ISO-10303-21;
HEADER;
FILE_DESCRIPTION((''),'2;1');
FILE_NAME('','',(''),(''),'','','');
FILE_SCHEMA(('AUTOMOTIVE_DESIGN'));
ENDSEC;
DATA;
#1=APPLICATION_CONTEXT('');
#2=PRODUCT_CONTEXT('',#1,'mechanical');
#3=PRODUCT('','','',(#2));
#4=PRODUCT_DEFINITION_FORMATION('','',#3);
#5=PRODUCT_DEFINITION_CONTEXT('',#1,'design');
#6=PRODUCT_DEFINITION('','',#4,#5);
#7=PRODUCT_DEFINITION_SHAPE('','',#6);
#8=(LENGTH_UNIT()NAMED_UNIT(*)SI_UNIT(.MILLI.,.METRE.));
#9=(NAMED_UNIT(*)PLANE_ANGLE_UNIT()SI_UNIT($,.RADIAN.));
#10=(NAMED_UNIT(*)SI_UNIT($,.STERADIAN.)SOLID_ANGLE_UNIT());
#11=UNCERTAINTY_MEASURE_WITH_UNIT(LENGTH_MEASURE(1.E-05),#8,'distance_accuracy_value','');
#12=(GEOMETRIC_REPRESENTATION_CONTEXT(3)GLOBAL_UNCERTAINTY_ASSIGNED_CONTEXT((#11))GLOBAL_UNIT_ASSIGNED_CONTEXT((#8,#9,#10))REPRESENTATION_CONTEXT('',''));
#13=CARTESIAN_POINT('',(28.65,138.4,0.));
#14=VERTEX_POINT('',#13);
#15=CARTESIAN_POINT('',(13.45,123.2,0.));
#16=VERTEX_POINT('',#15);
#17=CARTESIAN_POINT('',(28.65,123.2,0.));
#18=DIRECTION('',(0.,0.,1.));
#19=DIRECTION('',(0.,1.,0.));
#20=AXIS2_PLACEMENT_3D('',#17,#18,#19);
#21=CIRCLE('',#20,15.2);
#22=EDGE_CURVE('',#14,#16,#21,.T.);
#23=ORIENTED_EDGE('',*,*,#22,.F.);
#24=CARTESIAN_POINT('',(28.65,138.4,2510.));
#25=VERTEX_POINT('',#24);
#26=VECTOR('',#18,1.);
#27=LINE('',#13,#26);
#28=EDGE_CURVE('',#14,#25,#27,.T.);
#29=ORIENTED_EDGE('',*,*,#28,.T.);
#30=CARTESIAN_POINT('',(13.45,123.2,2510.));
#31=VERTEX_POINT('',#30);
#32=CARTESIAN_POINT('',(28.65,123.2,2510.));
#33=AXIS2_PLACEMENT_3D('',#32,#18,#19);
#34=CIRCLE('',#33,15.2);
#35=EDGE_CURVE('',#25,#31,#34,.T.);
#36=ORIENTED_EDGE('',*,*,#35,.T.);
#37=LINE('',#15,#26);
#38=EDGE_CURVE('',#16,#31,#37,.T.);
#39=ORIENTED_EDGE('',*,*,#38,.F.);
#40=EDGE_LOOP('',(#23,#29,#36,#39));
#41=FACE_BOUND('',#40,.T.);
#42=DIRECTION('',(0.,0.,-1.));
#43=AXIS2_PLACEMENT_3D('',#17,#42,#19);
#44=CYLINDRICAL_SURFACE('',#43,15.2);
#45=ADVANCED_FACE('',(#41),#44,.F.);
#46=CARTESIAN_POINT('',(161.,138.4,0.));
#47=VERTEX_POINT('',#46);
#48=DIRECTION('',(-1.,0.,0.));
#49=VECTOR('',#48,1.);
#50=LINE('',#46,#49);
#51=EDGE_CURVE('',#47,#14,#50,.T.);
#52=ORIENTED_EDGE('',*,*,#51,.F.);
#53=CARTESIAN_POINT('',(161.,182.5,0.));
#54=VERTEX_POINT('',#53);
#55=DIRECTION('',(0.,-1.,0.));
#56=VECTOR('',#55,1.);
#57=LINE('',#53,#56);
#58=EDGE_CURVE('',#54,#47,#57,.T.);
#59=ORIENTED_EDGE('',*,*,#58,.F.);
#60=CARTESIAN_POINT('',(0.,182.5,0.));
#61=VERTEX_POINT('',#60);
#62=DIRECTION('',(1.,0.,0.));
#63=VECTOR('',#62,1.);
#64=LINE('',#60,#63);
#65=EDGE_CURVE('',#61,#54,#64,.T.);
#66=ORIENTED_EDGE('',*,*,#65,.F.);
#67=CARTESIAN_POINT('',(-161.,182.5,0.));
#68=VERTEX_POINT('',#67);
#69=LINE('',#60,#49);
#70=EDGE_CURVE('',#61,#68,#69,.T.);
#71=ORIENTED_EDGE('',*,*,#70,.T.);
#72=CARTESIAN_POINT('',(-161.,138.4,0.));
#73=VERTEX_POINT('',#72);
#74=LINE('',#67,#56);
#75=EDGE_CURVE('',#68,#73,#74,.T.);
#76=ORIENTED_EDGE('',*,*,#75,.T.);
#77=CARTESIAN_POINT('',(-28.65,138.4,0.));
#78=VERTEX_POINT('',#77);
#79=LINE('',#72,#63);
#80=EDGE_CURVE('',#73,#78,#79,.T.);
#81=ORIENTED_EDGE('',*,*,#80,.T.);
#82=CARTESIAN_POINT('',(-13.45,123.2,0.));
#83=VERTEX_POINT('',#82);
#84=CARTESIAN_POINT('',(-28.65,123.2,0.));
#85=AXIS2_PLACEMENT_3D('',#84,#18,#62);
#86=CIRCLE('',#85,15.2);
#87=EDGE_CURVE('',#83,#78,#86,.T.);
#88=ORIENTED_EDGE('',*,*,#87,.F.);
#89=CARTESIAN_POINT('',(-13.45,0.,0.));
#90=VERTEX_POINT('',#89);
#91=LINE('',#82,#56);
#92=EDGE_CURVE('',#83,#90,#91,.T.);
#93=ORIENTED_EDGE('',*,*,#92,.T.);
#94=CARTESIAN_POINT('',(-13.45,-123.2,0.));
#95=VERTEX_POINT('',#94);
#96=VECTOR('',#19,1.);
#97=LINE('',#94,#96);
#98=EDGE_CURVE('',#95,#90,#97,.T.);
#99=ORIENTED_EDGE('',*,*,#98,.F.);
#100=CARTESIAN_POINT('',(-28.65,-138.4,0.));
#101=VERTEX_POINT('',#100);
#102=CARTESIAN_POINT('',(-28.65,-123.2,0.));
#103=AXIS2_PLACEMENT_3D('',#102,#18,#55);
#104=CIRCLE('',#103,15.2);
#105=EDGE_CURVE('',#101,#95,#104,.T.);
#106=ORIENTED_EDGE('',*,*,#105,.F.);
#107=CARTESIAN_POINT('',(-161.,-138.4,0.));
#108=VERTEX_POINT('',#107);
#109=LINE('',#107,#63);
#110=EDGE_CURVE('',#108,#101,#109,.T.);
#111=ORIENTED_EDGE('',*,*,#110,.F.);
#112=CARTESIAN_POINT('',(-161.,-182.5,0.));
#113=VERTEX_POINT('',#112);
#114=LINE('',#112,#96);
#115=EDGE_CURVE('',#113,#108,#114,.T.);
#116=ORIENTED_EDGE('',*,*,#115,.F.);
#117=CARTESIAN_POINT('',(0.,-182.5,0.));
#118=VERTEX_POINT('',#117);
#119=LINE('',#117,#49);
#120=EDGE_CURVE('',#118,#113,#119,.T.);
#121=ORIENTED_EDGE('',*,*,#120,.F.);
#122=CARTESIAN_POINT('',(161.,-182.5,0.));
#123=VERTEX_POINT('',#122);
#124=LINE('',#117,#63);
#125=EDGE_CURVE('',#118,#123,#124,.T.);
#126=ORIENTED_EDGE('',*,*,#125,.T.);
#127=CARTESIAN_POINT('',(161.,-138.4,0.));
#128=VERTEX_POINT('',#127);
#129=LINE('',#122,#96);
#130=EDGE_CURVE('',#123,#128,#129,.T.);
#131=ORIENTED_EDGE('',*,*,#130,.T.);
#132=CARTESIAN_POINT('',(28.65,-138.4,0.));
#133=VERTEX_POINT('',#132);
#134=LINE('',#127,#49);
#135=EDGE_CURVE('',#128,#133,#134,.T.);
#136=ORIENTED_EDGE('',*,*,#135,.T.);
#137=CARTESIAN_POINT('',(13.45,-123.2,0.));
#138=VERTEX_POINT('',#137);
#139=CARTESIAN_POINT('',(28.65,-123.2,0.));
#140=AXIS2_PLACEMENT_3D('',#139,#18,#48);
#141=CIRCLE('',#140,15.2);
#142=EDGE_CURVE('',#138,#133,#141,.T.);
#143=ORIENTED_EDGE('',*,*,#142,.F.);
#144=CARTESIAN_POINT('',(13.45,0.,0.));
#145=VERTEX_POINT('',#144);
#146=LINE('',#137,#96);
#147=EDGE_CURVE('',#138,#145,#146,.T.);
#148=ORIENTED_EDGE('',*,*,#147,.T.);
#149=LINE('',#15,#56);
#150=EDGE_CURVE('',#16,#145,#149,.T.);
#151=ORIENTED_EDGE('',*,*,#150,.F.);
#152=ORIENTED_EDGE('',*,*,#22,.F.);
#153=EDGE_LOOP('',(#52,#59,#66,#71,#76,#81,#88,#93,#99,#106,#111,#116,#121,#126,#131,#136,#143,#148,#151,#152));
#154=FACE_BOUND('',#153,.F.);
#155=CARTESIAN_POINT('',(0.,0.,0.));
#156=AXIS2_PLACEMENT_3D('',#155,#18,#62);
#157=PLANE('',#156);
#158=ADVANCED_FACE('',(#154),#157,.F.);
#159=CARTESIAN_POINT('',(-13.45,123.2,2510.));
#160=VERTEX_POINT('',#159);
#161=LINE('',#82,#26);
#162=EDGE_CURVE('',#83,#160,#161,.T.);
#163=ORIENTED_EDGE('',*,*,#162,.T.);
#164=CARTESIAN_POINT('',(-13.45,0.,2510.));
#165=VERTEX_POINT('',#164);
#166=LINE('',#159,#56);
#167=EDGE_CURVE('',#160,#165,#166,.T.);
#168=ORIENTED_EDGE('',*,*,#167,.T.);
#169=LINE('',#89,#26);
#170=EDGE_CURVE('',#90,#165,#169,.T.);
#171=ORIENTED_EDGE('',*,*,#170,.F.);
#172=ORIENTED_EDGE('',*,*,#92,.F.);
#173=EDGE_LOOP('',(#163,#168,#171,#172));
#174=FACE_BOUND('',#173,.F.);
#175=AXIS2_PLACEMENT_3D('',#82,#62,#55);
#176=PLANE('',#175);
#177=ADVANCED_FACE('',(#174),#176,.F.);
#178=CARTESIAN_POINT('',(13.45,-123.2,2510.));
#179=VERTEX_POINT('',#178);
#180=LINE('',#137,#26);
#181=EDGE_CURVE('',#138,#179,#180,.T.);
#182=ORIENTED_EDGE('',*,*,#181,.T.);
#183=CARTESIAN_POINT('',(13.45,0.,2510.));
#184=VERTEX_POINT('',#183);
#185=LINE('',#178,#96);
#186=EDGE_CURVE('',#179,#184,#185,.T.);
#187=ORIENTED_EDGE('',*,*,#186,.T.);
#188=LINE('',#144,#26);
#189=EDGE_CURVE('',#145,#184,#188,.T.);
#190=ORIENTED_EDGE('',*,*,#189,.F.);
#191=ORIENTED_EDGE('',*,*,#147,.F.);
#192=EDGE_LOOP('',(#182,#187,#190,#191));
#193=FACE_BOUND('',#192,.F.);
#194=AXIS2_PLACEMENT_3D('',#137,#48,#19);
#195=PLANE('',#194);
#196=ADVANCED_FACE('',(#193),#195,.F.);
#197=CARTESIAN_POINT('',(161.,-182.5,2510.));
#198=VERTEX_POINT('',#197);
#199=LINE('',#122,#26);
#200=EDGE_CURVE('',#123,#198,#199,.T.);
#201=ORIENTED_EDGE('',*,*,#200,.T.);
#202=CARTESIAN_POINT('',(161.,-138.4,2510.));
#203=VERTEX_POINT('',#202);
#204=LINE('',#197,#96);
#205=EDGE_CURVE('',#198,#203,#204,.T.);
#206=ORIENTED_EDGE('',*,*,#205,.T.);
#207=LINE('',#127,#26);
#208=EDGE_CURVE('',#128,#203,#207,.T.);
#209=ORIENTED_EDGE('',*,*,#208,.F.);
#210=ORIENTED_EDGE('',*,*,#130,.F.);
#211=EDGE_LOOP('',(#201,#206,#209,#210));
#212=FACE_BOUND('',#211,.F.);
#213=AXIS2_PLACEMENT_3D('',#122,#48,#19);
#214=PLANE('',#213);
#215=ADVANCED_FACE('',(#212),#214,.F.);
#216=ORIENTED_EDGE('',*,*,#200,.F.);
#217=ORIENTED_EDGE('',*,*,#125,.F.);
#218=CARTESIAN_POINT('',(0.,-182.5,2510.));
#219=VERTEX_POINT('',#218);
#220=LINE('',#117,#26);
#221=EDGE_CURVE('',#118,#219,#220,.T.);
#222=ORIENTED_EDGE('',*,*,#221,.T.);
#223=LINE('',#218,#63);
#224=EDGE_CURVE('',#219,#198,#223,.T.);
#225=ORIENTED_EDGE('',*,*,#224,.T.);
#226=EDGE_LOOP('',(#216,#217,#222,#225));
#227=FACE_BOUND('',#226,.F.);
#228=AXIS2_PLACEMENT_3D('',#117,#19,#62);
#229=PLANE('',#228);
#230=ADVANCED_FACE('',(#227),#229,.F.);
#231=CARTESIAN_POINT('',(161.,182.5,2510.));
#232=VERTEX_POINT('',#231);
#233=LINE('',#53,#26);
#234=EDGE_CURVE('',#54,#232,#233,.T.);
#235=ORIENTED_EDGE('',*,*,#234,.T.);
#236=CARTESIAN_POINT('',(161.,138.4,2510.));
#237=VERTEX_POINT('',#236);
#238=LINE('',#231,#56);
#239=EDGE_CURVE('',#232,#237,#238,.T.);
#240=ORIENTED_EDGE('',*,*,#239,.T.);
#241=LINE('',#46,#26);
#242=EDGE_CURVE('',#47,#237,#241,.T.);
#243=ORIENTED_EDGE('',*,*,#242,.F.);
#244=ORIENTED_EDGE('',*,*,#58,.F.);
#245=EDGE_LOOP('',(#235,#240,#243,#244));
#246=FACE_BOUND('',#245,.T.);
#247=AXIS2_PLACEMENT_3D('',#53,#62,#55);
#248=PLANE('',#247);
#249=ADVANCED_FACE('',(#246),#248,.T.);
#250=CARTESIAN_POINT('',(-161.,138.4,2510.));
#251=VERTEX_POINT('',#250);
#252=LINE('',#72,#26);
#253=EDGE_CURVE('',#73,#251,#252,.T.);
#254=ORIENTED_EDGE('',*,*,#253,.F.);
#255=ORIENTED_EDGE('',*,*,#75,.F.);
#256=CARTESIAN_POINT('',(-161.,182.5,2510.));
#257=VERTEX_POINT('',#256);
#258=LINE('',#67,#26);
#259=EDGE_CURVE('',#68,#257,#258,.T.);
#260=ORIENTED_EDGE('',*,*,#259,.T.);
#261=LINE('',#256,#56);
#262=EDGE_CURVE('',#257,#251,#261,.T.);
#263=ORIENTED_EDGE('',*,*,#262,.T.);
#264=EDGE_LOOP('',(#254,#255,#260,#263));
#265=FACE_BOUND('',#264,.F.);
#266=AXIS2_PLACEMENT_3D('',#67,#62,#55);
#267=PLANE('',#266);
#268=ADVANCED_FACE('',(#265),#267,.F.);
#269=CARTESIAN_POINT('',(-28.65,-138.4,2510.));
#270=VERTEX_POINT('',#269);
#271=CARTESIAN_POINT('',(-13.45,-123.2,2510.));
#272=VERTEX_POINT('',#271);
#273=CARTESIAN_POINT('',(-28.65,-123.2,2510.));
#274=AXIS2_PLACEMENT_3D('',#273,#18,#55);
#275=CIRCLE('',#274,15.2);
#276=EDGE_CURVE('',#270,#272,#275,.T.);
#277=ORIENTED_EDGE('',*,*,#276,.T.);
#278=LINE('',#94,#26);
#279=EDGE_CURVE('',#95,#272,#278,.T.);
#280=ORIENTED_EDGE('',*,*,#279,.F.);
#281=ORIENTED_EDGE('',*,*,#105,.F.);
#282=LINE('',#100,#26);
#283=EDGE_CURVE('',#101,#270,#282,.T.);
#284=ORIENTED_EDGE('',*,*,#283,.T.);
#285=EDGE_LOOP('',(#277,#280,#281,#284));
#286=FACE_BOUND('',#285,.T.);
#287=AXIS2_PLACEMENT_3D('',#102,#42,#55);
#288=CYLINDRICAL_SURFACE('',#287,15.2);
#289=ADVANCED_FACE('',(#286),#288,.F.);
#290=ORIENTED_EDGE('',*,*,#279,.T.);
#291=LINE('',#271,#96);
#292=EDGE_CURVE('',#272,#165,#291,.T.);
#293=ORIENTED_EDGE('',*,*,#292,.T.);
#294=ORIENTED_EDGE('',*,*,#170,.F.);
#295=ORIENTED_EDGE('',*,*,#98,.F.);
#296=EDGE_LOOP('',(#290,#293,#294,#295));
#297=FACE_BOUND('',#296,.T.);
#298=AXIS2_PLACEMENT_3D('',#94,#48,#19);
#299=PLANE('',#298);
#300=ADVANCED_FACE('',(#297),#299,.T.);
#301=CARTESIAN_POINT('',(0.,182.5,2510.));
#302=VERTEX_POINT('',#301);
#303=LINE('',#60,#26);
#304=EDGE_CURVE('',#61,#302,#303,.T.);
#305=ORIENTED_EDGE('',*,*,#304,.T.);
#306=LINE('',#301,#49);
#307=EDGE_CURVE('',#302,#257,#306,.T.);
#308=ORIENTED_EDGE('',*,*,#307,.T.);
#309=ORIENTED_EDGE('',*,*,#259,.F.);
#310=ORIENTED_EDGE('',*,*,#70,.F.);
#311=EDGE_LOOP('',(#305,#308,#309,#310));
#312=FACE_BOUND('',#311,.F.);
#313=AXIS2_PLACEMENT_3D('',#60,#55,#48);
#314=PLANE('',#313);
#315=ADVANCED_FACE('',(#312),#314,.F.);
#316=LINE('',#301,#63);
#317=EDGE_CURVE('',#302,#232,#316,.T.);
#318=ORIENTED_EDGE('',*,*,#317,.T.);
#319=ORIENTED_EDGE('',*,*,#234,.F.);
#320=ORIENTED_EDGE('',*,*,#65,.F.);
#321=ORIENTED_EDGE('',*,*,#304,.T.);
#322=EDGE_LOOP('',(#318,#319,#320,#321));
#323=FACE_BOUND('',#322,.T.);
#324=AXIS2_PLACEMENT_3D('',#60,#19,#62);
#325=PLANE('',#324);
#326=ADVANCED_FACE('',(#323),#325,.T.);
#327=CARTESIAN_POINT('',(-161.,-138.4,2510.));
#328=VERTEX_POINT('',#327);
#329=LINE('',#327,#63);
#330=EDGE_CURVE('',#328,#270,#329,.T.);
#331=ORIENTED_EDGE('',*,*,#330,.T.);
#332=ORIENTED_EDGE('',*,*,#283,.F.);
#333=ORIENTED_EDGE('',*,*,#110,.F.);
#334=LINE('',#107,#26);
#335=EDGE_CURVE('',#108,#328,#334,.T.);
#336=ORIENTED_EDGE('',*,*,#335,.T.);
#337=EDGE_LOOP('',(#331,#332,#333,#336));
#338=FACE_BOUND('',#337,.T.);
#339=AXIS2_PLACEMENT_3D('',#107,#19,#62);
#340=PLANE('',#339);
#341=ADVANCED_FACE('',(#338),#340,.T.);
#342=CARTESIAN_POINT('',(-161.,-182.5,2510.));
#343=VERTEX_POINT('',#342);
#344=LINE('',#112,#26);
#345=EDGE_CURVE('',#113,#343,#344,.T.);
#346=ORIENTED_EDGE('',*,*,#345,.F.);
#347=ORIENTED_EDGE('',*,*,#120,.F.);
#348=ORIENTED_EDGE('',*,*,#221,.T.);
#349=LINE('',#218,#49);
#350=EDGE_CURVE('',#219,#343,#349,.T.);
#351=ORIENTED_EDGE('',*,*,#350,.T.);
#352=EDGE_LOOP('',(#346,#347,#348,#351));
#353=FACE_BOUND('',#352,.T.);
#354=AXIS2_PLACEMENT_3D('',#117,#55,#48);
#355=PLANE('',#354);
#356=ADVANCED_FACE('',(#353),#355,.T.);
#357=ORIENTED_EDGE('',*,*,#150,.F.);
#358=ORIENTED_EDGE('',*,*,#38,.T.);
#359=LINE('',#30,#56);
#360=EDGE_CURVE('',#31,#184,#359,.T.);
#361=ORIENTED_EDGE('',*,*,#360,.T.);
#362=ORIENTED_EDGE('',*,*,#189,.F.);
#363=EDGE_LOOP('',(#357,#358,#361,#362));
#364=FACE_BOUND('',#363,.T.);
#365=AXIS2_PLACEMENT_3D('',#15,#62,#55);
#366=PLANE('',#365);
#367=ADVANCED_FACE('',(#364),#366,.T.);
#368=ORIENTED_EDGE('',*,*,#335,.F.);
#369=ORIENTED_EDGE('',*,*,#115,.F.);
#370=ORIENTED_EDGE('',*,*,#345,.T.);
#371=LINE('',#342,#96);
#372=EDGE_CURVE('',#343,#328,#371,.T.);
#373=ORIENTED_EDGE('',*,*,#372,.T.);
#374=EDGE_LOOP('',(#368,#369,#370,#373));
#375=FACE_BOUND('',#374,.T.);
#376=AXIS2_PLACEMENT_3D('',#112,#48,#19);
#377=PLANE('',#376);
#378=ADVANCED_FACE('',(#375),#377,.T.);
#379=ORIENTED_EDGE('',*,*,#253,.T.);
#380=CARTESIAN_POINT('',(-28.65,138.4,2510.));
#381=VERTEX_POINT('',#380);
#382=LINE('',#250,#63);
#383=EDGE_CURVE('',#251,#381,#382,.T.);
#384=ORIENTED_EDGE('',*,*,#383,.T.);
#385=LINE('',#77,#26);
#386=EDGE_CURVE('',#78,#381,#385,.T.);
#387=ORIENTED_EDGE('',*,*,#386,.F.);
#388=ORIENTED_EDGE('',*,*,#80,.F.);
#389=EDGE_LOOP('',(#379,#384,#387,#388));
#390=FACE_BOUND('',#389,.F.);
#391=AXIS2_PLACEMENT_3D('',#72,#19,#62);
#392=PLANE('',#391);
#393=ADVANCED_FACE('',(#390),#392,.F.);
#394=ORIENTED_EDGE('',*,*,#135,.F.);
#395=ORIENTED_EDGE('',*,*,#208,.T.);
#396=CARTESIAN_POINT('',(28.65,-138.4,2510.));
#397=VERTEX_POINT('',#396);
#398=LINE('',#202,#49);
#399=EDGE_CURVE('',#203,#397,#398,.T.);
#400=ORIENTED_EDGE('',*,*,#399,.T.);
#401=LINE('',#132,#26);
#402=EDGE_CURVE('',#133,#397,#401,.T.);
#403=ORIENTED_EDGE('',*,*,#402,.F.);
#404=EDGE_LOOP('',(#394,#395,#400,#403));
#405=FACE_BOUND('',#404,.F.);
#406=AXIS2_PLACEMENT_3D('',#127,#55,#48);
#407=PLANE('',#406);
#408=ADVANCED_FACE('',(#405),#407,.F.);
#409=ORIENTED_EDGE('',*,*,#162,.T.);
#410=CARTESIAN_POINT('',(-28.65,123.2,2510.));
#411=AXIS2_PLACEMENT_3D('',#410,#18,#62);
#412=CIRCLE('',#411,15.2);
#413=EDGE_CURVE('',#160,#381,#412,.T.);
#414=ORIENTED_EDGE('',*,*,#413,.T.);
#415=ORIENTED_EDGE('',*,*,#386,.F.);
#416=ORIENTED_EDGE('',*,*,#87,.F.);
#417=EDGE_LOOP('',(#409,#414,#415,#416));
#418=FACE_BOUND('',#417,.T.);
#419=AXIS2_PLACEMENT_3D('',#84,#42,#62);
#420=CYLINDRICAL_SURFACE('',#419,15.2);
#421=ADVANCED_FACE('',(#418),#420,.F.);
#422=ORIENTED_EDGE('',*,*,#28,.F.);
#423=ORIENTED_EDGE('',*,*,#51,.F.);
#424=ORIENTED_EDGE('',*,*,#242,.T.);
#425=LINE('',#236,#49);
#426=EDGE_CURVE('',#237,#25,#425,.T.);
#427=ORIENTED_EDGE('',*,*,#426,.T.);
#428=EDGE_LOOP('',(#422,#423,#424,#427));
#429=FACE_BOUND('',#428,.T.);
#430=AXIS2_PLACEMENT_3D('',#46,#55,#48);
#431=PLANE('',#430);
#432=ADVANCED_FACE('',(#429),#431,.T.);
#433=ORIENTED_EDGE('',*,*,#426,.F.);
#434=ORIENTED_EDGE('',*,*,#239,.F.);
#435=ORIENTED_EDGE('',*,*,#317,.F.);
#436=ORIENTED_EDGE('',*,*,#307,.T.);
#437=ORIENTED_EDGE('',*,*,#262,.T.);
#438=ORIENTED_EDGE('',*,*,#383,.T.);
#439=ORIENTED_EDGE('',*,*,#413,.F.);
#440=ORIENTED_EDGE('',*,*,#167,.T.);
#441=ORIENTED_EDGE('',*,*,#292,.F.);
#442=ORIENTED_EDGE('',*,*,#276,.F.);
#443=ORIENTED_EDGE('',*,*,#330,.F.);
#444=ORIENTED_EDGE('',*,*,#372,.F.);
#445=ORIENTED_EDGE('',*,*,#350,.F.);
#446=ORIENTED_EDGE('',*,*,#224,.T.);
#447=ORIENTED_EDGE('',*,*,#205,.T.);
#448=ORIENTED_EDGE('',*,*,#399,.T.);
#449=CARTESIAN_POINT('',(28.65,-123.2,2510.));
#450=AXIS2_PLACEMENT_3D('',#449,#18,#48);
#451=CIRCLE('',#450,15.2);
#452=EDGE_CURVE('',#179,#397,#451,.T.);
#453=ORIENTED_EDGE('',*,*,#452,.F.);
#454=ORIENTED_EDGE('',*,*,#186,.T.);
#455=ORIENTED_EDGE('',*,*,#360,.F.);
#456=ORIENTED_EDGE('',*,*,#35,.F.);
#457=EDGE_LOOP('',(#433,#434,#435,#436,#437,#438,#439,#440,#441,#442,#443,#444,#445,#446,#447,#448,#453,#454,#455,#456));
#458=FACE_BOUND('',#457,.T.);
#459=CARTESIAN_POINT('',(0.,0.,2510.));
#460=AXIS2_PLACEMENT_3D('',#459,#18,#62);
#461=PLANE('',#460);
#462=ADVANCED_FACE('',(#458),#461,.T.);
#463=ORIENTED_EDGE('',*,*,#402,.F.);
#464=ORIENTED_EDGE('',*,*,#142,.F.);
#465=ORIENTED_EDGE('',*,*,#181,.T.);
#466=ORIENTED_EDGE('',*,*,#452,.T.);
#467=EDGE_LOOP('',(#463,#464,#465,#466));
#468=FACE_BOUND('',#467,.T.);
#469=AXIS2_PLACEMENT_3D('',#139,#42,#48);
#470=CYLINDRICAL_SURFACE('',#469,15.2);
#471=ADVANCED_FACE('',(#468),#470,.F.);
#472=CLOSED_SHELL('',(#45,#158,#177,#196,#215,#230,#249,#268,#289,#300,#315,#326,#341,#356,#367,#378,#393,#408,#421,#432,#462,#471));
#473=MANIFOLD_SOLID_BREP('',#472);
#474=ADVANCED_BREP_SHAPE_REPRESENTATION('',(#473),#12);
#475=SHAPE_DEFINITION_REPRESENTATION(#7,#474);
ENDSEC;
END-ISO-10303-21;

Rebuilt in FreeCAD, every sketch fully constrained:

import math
import FreeCAD as App
import Part
import Sketcher

V = App.Vector
Q = App.Units.Quantity

doc = App.newDocument("Part")
body = doc.addObject("PartDesign::Body", "Body")

# Sketch on XY plane
sketch1 = doc.addObject("Sketcher::SketchObject", "Sketch")
body.addObject(sketch1)
sketch1.AttachmentSupport = (doc.XY_Plane, [""])
sketch1.MapMode = "FlatFace"
sketch1.addGeometry([
    Part.LineSegment(V(-161, -138, 0), V(-161, -182, 0)),  # 0
    Part.LineSegment(V(-161, -182, 0), V(161, -182, 0)),  # 1
    Part.LineSegment(V(161, -182, 0), V(161, -138, 0)),  # 2
    Part.LineSegment(V(161, -138, 0), V(29, -138, 0)),  # 3
    Part.ArcOfCircle(Part.Circle(V(29, -123, 0), V(0, 0, 1), 15), math.radians(180), math.radians(270)),  # 4
    Part.LineSegment(V(13, -123, 0), V(13, 123, 0)),  # 5
    Part.ArcOfCircle(Part.Circle(V(29, 123, 0), V(0, 0, 1), 15), math.radians(90), math.radians(180)),  # 6
    Part.LineSegment(V(29, 138, 0), V(161, 138, 0)),  # 7
    Part.LineSegment(V(161, 138, 0), V(161, 182, 0)),  # 8
    Part.LineSegment(V(161, 182, 0), V(-161, 182, 0)),  # 9
    Part.LineSegment(V(-161, 182, 0), V(-161, 138, 0)),  # 10
    Part.LineSegment(V(-161, 138, 0), V(-29, 138, 0)),  # 11
    Part.ArcOfCircle(Part.Circle(V(-29, 123, 0), V(0, 0, 1), 15), math.radians(0), math.radians(90)),  # 12
    Part.LineSegment(V(-13, 123, 0), V(-13, -123, 0)),  # 13
    Part.ArcOfCircle(Part.Circle(V(-29, -123, 0), V(0, 0, 1), 15), math.radians(-90), math.radians(0)),  # 14
    Part.LineSegment(V(-29, -138, 0), V(-161, -138, 0)),  # 15
], False)
sketch1.addConstraint([
    Sketcher.Constraint("Coincident", 0, 2, 1, 1),
    Sketcher.Constraint("Coincident", 1, 2, 2, 1),
    Sketcher.Constraint("Coincident", 2, 2, 3, 1),
    Sketcher.Constraint("Tangent", 3, 2, 4, 2),
    Sketcher.Constraint("Tangent", 4, 1, 5, 1),
    Sketcher.Constraint("Tangent", 5, 2, 6, 2),
    Sketcher.Constraint("Tangent", 6, 1, 7, 1),
    Sketcher.Constraint("Coincident", 7, 2, 8, 1),
    Sketcher.Constraint("Coincident", 8, 2, 9, 1),
    Sketcher.Constraint("Coincident", 9, 2, 10, 1),
    Sketcher.Constraint("Coincident", 10, 2, 11, 1),
    Sketcher.Constraint("Tangent", 11, 2, 12, 2),
    Sketcher.Constraint("Tangent", 12, 1, 13, 1),
    Sketcher.Constraint("Tangent", 13, 2, 14, 2),
    Sketcher.Constraint("Tangent", 14, 1, 15, 1),
    Sketcher.Constraint("Coincident", 15, 2, 0, 1),
    Sketcher.Constraint("Vertical", 0),
    Sketcher.Constraint("Horizontal", 1),
    Sketcher.Constraint("Vertical", 2),
    Sketcher.Constraint("Horizontal", 3),
    Sketcher.Constraint("Vertical", 5),
    Sketcher.Constraint("Horizontal", 7),
    Sketcher.Constraint("Vertical", 8),
    Sketcher.Constraint("Horizontal", 9),
    Sketcher.Constraint("Vertical", 10),
    Sketcher.Constraint("Horizontal", 11),
    Sketcher.Constraint("Vertical", 13),
    Sketcher.Constraint("Horizontal", 15),
    Sketcher.Constraint("Equal", 4, 6),
    Sketcher.Constraint("Equal", 6, 12),
    Sketcher.Constraint("Equal", 12, 14),
    Sketcher.Constraint("Symmetric", 4, 3, 12, 3, -1, 1),
    Sketcher.Constraint("Symmetric", 0, 2, 8, 2, -1, 1),
    Sketcher.Constraint("Symmetric", 7, 2, 10, 2, -2),
    Sketcher.Constraint("Symmetric", 2, 2, 15, 2, -2),
    Sketcher.Constraint("Radius", 4, Q("15.2 mm")),
    Sketcher.Constraint("DistanceY", 0, 2, 0, 1, Q("44.1 mm")),
    Sketcher.Constraint("DistanceX", 0, 2, -1, 1, Q("161 mm")),
    Sketcher.Constraint("DistanceY", 0, 2, -1, 1, Q("182.5 mm")),
    Sketcher.Constraint("DistanceX", -1, 1, 4, 1, Q("13.45 mm")),
])
pad1 = doc.addObject("PartDesign::Pad", "Pad")
body.addObject(pad1)
pad1.Profile = sketch1
pad1.Length = 2510

doc.recompute()
